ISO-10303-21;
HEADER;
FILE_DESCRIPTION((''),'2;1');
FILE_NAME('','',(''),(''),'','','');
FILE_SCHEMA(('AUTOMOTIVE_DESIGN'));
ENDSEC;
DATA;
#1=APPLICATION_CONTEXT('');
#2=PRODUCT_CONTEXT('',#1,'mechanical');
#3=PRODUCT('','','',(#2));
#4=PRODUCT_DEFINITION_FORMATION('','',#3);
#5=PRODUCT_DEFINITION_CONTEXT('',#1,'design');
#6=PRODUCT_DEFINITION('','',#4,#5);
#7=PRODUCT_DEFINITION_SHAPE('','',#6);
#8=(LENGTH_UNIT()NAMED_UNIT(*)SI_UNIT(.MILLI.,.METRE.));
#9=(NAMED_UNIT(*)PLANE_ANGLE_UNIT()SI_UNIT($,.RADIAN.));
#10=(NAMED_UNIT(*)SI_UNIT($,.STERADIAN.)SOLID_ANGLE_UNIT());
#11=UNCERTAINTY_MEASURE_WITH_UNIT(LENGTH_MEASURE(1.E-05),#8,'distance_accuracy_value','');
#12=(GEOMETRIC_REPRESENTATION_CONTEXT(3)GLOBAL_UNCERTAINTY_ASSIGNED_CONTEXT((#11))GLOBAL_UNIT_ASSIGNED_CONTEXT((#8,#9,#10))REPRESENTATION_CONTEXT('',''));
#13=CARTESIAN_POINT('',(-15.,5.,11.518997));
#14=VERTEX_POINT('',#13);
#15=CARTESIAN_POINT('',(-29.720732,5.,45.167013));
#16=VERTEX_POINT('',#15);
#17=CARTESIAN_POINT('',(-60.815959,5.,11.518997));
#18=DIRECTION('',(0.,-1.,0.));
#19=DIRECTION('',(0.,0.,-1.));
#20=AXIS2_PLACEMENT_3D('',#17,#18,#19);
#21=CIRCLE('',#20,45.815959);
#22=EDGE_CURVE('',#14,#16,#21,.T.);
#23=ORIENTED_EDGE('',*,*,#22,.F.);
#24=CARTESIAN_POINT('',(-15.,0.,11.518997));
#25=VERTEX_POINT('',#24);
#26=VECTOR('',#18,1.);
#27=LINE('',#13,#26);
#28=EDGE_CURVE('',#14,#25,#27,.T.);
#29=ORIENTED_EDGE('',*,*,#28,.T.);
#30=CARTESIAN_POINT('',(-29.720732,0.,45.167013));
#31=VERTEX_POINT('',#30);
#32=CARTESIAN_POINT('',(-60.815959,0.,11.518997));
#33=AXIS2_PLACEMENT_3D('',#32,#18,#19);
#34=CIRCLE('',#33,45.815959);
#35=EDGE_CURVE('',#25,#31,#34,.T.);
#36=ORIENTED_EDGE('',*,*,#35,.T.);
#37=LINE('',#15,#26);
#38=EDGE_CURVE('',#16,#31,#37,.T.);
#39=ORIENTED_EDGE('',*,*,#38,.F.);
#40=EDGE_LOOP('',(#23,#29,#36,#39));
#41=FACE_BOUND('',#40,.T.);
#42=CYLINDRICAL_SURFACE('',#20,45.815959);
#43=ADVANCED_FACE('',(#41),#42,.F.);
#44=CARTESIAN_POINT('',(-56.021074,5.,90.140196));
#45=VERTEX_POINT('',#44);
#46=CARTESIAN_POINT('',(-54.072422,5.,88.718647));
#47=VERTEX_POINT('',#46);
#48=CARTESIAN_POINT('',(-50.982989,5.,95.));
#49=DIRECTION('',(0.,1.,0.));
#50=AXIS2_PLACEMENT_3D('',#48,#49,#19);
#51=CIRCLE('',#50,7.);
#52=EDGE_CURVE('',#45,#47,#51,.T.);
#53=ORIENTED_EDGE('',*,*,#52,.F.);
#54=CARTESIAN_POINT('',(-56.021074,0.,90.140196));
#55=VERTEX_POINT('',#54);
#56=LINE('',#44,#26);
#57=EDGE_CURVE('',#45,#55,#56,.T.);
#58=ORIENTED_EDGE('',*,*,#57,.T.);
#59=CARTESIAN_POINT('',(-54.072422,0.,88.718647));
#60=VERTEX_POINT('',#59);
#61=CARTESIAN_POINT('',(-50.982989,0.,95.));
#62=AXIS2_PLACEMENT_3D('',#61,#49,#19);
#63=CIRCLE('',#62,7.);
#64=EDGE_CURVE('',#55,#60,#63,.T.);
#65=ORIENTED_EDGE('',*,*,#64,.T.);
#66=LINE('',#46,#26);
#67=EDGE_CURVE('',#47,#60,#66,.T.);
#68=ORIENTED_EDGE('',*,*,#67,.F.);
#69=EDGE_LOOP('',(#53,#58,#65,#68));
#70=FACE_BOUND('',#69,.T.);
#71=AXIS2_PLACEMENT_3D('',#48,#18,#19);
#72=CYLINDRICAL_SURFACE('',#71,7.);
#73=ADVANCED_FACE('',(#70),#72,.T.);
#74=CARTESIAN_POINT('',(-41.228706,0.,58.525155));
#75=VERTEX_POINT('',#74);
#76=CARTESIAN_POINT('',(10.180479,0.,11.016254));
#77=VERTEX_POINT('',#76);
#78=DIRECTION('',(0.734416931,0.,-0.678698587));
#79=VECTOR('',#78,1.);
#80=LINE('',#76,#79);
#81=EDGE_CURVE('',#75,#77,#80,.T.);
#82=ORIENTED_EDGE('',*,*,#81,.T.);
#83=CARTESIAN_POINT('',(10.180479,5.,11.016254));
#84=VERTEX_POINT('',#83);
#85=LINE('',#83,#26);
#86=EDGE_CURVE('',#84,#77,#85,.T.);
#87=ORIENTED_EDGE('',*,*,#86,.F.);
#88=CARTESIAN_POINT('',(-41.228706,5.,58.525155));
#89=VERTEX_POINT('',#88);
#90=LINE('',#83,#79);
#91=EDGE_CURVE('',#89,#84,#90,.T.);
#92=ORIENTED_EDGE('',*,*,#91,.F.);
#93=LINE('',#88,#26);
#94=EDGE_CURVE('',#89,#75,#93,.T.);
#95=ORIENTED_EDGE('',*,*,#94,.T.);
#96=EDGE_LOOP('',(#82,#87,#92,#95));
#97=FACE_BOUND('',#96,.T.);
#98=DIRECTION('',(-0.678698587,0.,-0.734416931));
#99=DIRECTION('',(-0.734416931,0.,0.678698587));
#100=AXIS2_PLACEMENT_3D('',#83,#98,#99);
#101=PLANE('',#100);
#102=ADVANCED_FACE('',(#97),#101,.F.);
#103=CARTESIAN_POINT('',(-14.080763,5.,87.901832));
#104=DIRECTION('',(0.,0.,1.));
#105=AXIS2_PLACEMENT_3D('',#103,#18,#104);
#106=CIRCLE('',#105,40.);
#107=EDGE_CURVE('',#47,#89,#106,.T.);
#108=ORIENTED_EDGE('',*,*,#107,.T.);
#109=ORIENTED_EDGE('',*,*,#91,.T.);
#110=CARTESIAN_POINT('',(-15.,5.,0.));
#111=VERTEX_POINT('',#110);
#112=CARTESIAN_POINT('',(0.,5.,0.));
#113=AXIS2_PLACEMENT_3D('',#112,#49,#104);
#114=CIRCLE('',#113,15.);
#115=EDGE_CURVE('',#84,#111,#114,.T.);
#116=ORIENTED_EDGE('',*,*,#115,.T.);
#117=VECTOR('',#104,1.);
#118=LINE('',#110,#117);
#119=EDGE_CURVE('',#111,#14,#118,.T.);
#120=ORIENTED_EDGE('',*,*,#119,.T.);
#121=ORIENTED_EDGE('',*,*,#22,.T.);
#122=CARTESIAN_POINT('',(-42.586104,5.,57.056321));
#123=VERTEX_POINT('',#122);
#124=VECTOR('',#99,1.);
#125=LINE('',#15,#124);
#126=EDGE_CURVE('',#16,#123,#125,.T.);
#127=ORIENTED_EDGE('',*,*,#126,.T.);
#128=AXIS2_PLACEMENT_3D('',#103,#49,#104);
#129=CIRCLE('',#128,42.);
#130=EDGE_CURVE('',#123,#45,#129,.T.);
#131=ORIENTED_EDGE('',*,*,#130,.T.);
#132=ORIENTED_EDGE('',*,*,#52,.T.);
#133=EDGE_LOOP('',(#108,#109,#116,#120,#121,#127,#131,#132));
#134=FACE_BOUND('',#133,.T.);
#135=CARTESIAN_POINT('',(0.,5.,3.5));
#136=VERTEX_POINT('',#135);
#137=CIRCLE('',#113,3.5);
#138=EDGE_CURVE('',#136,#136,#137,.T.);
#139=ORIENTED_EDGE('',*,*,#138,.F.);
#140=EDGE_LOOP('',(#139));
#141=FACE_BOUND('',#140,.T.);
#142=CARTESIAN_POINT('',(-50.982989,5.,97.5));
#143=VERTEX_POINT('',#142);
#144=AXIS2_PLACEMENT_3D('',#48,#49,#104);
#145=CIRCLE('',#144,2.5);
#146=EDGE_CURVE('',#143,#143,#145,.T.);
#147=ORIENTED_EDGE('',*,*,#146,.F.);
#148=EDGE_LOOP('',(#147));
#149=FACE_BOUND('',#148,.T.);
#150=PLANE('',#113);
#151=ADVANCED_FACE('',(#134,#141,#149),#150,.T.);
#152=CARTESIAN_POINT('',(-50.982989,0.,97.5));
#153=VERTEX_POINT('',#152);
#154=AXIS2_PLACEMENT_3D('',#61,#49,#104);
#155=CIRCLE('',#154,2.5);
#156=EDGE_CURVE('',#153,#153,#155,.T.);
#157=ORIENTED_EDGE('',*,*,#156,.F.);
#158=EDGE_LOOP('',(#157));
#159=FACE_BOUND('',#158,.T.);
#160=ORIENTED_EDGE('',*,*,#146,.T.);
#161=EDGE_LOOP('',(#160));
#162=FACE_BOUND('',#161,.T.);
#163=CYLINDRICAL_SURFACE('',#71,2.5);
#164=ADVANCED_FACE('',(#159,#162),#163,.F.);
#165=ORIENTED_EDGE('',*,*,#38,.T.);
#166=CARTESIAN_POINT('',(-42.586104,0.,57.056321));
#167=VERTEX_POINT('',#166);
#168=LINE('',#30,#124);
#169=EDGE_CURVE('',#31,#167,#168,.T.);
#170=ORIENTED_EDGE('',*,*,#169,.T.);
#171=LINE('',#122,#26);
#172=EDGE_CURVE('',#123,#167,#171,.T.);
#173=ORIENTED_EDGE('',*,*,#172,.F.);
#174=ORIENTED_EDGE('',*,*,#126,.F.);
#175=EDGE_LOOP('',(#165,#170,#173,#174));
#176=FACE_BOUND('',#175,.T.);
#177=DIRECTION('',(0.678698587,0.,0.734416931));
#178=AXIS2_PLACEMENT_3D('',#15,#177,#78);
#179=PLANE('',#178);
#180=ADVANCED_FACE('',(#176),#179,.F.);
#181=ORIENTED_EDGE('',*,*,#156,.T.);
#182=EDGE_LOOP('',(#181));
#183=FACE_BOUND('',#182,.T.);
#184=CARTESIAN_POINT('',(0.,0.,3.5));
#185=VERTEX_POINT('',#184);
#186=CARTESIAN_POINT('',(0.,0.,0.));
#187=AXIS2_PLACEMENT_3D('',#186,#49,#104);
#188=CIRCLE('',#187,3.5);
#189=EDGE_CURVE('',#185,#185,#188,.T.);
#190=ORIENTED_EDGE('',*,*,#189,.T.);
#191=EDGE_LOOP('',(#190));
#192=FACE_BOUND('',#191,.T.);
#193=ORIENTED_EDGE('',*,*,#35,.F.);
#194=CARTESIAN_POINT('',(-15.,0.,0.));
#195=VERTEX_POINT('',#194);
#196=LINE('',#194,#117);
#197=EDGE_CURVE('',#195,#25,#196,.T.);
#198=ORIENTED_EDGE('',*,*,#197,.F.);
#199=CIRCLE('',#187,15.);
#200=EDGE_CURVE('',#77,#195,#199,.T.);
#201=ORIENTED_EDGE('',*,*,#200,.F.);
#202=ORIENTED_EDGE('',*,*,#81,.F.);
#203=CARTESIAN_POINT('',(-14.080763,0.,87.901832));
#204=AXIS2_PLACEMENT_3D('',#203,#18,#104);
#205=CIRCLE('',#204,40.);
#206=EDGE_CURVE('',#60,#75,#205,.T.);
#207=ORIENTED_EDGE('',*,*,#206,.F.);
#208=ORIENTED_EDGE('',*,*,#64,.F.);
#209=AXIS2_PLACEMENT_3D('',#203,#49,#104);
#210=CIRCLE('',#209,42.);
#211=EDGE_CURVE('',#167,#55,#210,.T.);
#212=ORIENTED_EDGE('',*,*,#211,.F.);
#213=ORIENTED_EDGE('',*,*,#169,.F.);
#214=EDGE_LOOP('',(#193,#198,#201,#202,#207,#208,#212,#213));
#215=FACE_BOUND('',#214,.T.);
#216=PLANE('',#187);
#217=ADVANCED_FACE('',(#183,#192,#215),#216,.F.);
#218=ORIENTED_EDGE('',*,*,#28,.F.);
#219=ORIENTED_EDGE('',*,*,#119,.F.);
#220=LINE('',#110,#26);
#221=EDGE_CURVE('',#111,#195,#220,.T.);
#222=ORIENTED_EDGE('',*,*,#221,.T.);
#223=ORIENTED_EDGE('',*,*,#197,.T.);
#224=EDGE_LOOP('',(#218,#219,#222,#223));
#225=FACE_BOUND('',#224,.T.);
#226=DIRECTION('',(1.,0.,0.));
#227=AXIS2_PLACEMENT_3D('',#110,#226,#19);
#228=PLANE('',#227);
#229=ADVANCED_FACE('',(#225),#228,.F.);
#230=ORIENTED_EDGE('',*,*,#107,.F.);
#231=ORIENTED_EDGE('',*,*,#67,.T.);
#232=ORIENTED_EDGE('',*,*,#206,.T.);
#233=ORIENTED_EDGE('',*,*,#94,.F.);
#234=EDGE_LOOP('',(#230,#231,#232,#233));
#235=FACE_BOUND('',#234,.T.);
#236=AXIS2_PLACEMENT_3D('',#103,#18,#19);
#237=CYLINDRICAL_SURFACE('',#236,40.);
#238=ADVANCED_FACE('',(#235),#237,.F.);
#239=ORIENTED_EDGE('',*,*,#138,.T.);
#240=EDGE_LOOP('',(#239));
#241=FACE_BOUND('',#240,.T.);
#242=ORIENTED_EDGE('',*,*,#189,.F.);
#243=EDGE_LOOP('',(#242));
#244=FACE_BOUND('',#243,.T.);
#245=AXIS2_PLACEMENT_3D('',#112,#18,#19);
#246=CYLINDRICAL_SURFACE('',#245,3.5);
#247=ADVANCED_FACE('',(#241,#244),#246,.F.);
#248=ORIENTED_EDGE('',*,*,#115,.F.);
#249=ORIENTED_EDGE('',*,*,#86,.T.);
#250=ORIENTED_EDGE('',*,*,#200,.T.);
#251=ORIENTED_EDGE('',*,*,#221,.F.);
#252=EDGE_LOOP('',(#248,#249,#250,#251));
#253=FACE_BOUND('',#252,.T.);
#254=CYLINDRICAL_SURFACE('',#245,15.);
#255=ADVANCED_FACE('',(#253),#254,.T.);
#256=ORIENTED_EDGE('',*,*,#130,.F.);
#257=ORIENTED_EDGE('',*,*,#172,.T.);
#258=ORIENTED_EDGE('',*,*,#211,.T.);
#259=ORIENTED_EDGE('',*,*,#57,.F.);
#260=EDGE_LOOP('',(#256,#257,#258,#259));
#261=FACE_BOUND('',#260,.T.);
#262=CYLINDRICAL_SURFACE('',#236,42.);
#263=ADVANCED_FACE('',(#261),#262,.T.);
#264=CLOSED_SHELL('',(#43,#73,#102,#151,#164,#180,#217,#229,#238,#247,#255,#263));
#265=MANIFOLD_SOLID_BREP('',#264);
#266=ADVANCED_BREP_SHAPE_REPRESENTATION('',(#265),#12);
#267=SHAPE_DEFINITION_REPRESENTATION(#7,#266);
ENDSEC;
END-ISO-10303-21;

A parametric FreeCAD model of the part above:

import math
import FreeCAD as App
import Part
import Sketcher
from FreeCAD import Vector
Q = App.Units.Quantity

doc = App.newDocument("Part")
body = doc.addObject("PartDesign::Body", "Body")

# Sketch on XZ plane
sketch1 = body.newObject("Sketcher::SketchObject", "Sketch")
sketch1.AttachmentSupport = (doc.getObject("XZ_Plane"), [""])
sketch1.MapMode = "FlatFace"
sketch1.addGeometry(Part.LineSegment(Vector(-41.2, 58.5, 0), Vector(10.2, 11, 0)), False)
sketch1.addGeometry(Part.ArcOfCircle(Part.Circle(Vector(0, 0, 0), Vector(0, 0, 1), 15), math.radians(180), math.radians(407)), False)
sketch1.addGeometry(Part.LineSegment(Vector(-15, 0, 0), Vector(-15, 11.5, 0)), False)
sketch1.addGeometry(Part.ArcOfCircle(Part.Circle(Vector(-60.8, 11.5, 0), Vector(0, 0, 1), 45.8), math.radians(0), math.radians(47)), False)
sketch1.addGeometry(Part.LineSegment(Vector(-29.7, 45.2, 0), Vector(-42.6, 57.1, 0)), False)
sketch1.addGeometry(Part.ArcOfCircle(Part.Circle(Vector(-14.1, 87.9, 0), Vector(0, 0, 1), 42), math.radians(177), math.radians(227)), False)
sketch1.addGeometry(Part.ArcOfCircle(Part.Circle(Vector(-51, 95, 0), Vector(0, 0, 1), 7), math.radians(-116), math.radians(224)), False)
sketch1.addGeometry(Part.ArcOfCircle(Part.Circle(Vector(-14.1, 87.9, 0), Vector(0, 0, 1), 40), math.radians(179), math.radians(227)), False)
sketch1.addGeometry(Part.Circle(Vector(-51, 95, 0), Vector(0, 0, 1), 2.5), False)
sketch1.addGeometry(Part.Circle(Vector(0, 0, 0), Vector(0, 0, 1), 3.5), False)
sketch1.addConstraint(Sketcher.Constraint("Tangent", 0, 2, 1, 2))
sketch1.addConstraint(Sketcher.Constraint("Tangent", 1, 1, 2, 1))
sketch1.addConstraint(Sketcher.Constraint("Tangent", 2, 2, 3, 1))
sketch1.addConstraint(Sketcher.Constraint("Tangent", 3, 2, 4, 1))
sketch1.addConstraint(Sketcher.Constraint("Tangent", 4, 2, 5, 2))
sketch1.addConstraint(Sketcher.Constraint("Coincident", 5, 1, 6, 2))
sketch1.addConstraint(Sketcher.Constraint("Coincident", 6, 1, 7, 1))
sketch1.addConstraint(Sketcher.Constraint("Tangent", 7, 2, 0, 1))
sketch1.addConstraint(Sketcher.Constraint("Vertical", 2))
sketch1.addConstraint(Sketcher.Constraint("Coincident", 1, 3, -1, 1))
sketch1.addConstraint(Sketcher.Constraint("Coincident", 9, 3, -1, 1))
sketch1.addConstraint(Sketcher.Constraint("Coincident", 7, 3, 5, 3))
sketch1.addConstraint(Sketcher.Constraint("Coincident", 8, 3, 6, 3))
sketch1.addConstraint(Sketcher.Constraint("Parallel", 0, 4))
sketch1.addConstraint(Sketcher.Constraint("Diameter", 8, Q("5 mm")))
sketch1.addConstraint(Sketcher.Constraint("Diameter", 9, Q("7 mm")))
sketch1.addConstraint(Sketcher.Constraint("Radius", 1, Q("15 mm")))
sketch1.addConstraint(Sketcher.Constraint("Radius", 5, Q("42 mm")))
sketch1.addConstraint(Sketcher.Constraint("Radius", 6, Q("7 mm")))
sketch1.addConstraint(Sketcher.Constraint("Radius", 7, Q("40 mm")))
sketch1.addConstraint(Sketcher.Constraint("Distance", 0, Q("70 mm")))
sketch1.addConstraint(Sketcher.Constraint("DistanceY", -1, 1, 6, 3, Q("95 mm")))
sketch1.addConstraint(Sketcher.Constraint("Radius", 3, Q("45.815959 mm")))
sketch1.addConstraint(Sketcher.Constraint("DistanceY", 2, 1, 2, 2, Q("11.518997 mm")))
sketch1.addConstraint(Sketcher.Constraint("DistanceX", 6, 3, -1, 1, Q("50.982989 mm")))
pad1 = body.newObject("PartDesign::Pad", "Pad")
pad1.Profile = sketch1
pad1.Length = 5
pad1.Reversed = True

doc.recompute()
